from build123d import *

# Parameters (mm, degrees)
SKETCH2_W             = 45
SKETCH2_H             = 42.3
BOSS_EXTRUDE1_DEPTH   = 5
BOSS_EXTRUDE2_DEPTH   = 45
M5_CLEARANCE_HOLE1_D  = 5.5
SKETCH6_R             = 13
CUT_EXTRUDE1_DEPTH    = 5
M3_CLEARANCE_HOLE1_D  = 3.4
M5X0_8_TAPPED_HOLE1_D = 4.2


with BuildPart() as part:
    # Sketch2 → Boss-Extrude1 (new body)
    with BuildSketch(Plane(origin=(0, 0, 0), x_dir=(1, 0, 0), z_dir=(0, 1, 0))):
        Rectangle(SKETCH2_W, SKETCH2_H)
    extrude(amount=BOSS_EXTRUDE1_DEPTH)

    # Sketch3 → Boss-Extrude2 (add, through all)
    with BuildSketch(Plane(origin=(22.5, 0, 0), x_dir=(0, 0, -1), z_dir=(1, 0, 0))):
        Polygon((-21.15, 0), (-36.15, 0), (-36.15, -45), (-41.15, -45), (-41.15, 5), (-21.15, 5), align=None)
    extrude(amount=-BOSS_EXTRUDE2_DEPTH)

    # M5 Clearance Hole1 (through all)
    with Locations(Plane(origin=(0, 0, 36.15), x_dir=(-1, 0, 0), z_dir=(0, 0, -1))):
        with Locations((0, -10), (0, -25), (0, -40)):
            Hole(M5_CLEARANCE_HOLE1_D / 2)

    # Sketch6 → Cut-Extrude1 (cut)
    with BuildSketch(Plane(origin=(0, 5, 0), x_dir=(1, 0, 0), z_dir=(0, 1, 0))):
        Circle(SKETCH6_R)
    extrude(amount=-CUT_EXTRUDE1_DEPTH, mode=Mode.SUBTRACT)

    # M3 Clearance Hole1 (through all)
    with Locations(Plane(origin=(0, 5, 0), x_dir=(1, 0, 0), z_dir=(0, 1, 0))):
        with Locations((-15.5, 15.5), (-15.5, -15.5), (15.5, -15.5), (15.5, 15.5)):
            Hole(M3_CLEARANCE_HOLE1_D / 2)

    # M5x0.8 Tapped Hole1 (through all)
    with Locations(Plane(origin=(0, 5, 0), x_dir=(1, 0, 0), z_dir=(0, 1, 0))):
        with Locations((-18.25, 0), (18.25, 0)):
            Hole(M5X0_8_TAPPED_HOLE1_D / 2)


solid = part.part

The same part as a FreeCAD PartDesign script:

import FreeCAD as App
import Part
import Sketcher
from FreeCAD import Vector
Q = App.Units.Quantity

doc = App.newDocument("Part")
body = doc.addObject("PartDesign::Body", "Body")

sketch1 = body.newObject("Sketcher::SketchObject", "Sketch")
sketch1.AttachmentSupport = (doc.getObject("XZ_Plane"), [""])
sketch1.MapMode = "FlatFace"
sketch1.addGeometry(Part.LineSegment(Vector(-22.5, -21.15, 0), Vector(-22.5, 21.15, 0)), False)
sketch1.addGeometry(Part.LineSegment(Vector(-22.5, 21.15, 0), Vector(22.5, 21.15, 0)), False)
sketch1.addGeometry(Part.LineSegment(Vector(22.5, 21.15, 0), Vector(22.5, -21.15, 0)), False)
sketch1.addGeometry(Part.LineSegment(Vector(22.5, -21.15, 0), Vector(-22.5, -21.15, 0)), False)
sketch1.addConstraint(Sketcher.Constraint("Coincident", 0, 2, 1, 1))
sketch1.addConstraint(Sketcher.Constraint("Coincident", 1, 2, 2, 1))
sketch1.addConstraint(Sketcher.Constraint("Coincident", 2, 2, 3, 1))
sketch1.addConstraint(Sketcher.Constraint("Coincident", 3, 2, 0, 1))
sketch1.addConstraint(Sketcher.Constraint("Vertical", 0))
sketch1.addConstraint(Sketcher.Constraint("Horizontal", 1))
sketch1.addConstraint(Sketcher.Constraint("Vertical", 2))
sketch1.addConstraint(Sketcher.Constraint("Horizontal", 3))
sketch1.addConstraint(Sketcher.Constraint("Symmetric", 0, 2, 2, 2, -1, 1))
sketch1.addConstraint(Sketcher.Constraint("DistanceX", 1, 1, 1, 2, Q("45 mm")))
sketch1.addConstraint(Sketcher.Constraint("DistanceY", 0, 1, 0, 2, Q("42.3 mm")))
pad1 = body.newObject("PartDesign::Pad", "Pad")
pad1.Profile = sketch1
pad1.Length = 5
pad1.Reversed = True

sketch2 = body.newObject("Sketcher::SketchObject", "Sketch001")
sketch2.AttachmentSupport = (doc.getObject("YZ_Plane"), [""])
sketch2.MapMode = "FlatFace"
sketch2.AttachmentOffset = App.Placement(Vector(0, 0, 22.5), App.Rotation())
sketch2.addGeometry(Part.LineSegment(Vector(0, 36.15, 0), Vector(0, 21.15, 0)), False)
sketch2.addGeometry(Part.LineSegment(Vector(0, 21.15, 0), Vector(5, 21.15, 0)), False)
sketch2.addGeometry(Part.LineSegment(Vector(5, 21.15, 0), Vector(5, 41.15, 0)), False)
sketch2.addGeometry(Part.LineSegment(Vector(5, 41.15, 0), Vector(-45, 41.15, 0)), False)
sketch2.addGeometry(Part.LineSegment(Vector(-45, 41.15, 0), Vector(-45, 36.15, 0)), False)
sketch2.addGeometry(Part.LineSegment(Vector(-45, 36.15, 0), Vector(0, 36.15, 0)), False)
sketch2.addConstraint(Sketcher.Constraint("Coincident", 0, 2, 1, 1))
sketch2.addConstraint(Sketcher.Constraint("Coincident", 1, 2, 2, 1))
sketch2.addConstraint(Sketcher.Constraint("Coincident", 2, 2, 3, 1))
sketch2.addConstraint(Sketcher.Constraint("Coincident", 3, 2, 4, 1))
sketch2.addConstraint(Sketcher.Constraint("Coincident", 4, 2, 5, 1))
sketch2.addConstraint(Sketcher.Constraint("Coincident", 5, 2, 0, 1))
sketch2.addConstraint(Sketcher.Constraint("Vertical", 0))
sketch2.addConstraint(Sketcher.Constraint("Horizontal", 1))
sketch2.addConstraint(Sketcher.Constraint("Vertical", 2))
sketch2.addConstraint(Sketcher.Constraint("Horizontal", 3))
sketch2.addConstraint(Sketcher.Constraint("Vertical", 4))
sketch2.addConstraint(Sketcher.Constraint("Horizontal", 5))
sketch2.addConstraint(Sketcher.Constraint("PointOnObject", 0, 2, -2))
sketch2.addConstraint(Sketcher.Constraint("Equal", 1, 4))
sketch2.addConstraint(Sketcher.Constraint("DistanceX", 1, 1, 1, 2, Q("5 mm")))
sketch2.addConstraint(Sketcher.Constraint("DistanceX", 3, 2, 3, 1, Q("50 mm")))
sketch2.addConstraint(Sketcher.Constraint("DistanceY", 0, 2, 0, 1, Q("15 mm")))
sketch2.addConstraint(Sketcher.Constraint("DistanceY", -1, 1, 0, 2, Q("21.15 mm")))
pad2 = body.newObject("PartDesign::Pad", "Pad001")
pad2.Profile = sketch2
pad2.Length = 45
pad2.Reversed = True

sketch3 = body.newObject("Sketcher::SketchObject", "Sketch002")
sketch3.AttachmentSupport = (doc.getObject("XY_Plane"), [""])
sketch3.MapMode = "FlatFace"
sketch3.AttachmentOffset = App.Placement(Vector(0, 0, 36.15), App.Rotation())
sketch3.addGeometry(Part.Circle(Vector(0, -10, 0), Vector(0, 0, 1), 2.75), False)
sketch3.addGeometry(Part.Circle(Vector(0, -25, 0), Vector(0, 0, 1), 2.75), False)
sketch3.addGeometry(Part.Circle(Vector(0, -40, 0), Vector(0, 0, 1), 2.75), False)
sketch3.addConstraint(Sketcher.Constraint("Equal", 0, 1))
sketch3.addConstraint(Sketcher.Constraint("Equal", 1, 2))
sketch3.addConstraint(Sketcher.Constraint("PointOnObject", 0, 3, -2))
sketch3.addConstraint(Sketcher.Constraint("PointOnObject", 1, 3, -2))
sketch3.addConstraint(Sketcher.Constraint("PointOnObject", 2, 3, -2))
sketch3.addConstraint(Sketcher.Constraint("Diameter", 0, Q("5.5 mm")))
sketch3.addConstraint(Sketcher.Constraint("DistanceY", 0, 3, -1, 1, Q("10 mm")))
sketch3.addConstraint(Sketcher.Constraint("DistanceY", 1, 3, -1, 1, Q("25 mm")))
sketch3.addConstraint(Sketcher.Constraint("DistanceY", 2, 3, -1, 1, Q("40 mm")))
doc.recompute()
hole = body.newObject("PartDesign::Hole", "Hole")
hole.Profile = sketch3
hole.ThreadType = "None"
hole.Diameter = 5.5
hole.DepthType = "ThroughAll"
hole.Reversed = True

sketch4 = body.newObject("Sketcher::SketchObject", "Sketch003")
sketch4.AttachmentSupport = (doc.getObject("XZ_Plane"), [""])
sketch4.MapMode = "FlatFace"
sketch4.AttachmentOffset = App.Placement(Vector(0, 0, -5), App.Rotation())
sketch4.addGeometry(Part.Circle(Vector(0, 0, 0), Vector(0, 0, 1), 13), False)
sketch4.addConstraint(Sketcher.Constraint("Coincident", 0, 3, -1, 1))
sketch4.addConstraint(Sketcher.Constraint("Diameter", 0, Q("26 mm")))
pocket1 = body.newObject("PartDesign::Pocket", "Pocket")
pocket1.Profile = sketch4
pocket1.Length = 5
pocket1.Reversed = True

sketch5 = body.newObject("Sketcher::SketchObject", "Sketch004")
sketch5.AttachmentSupport = (doc.getObject("XZ_Plane"), [""])
sketch5.MapMode = "FlatFace"
sketch5.AttachmentOffset = App.Placement(Vector(0, 0, -5), App.Rotation())
sketch5.addGeometry(Part.Circle(Vector(-15.5, -15.5, 0), Vector(0, 0, 1), 1.7), False)
sketch5.addGeometry(Part.Circle(Vector(-15.5, 15.5, 0), Vector(0, 0, 1), 1.7), False)
sketch5.addGeometry(Part.Circle(Vector(15.5, 15.5, 0), Vector(0, 0, 1), 1.7), False)
sketch5.addGeometry(Part.Circle(Vector(15.5, -15.5, 0), Vector(0, 0, 1), 1.7), False)
sketch5.addConstraint(Sketcher.Constraint("Equal", 0, 1))
sketch5.addConstraint(Sketcher.Constraint("Equal", 1, 2))
sketch5.addConstraint(Sketcher.Constraint("Equal", 2, 3))
sketch5.addConstraint(Sketcher.Constraint("Symmetric", 0, 3, 2, 3, -1, 1))
sketch5.addConstraint(Sketcher.Constraint("Symmetric", 1, 3, 3, 3, -1, 1))
sketch5.addConstraint(Sketcher.Constraint("Symmetric", 1, 3, 2, 3, -2))
sketch5.addConstraint(Sketcher.Constraint("Diameter", 0, Q("3.4 mm")))
sketch5.addConstraint(Sketcher.Constraint("DistanceY", 0, 3, 1, 3, Q("31 mm")))
sketch5.addConstraint(Sketcher.Constraint("DistanceX", 1, 3, 2, 3, Q("31 mm")))
doc.recompute()
hole2 = body.newObject("PartDesign::Hole", "Hole001")
hole2.Profile = sketch5
hole2.ThreadType = "None"
hole2.Diameter = 3.4
hole2.DepthType = "ThroughAll"
hole2.Reversed = True

sketch6 = body.newObject("Sketcher::SketchObject", "Sketch005")
sketch6.AttachmentSupport = (doc.getObject("XZ_Plane"), [""])
sketch6.MapMode = "FlatFace"
sketch6.AttachmentOffset = App.Placement(Vector(0, 0, -5), App.Rotation())
sketch6.addGeometry(Part.Circle(Vector(-18.25, 0, 0), Vector(0, 0, 1), 2.1), False)
sketch6.addGeometry(Part.Circle(Vector(18.25, 0, 0), Vector(0, 0, 1), 2.1), False)
sketch6.addConstraint(Sketcher.Constraint("Equal", 0, 1))
sketch6.addConstraint(Sketcher.Constraint("Symmetric", 0, 3, 1, 3, -1, 1))
sketch6.addConstraint(Sketcher.Constraint("PointOnObject", 0, 3, -1))
sketch6.addConstraint(Sketcher.Constraint("Diameter", 0, Q("4.2 mm")))
sketch6.addConstraint(Sketcher.Constraint("DistanceX", 0, 3, 1, 3, Q("36.5 mm")))
doc.recompute()
hole3 = body.newObject("PartDesign::Hole", "Hole002")
hole3.Profile = sketch6
hole3.ThreadType = "None"
hole3.Diameter = 4.2
hole3.DepthType = "ThroughAll"
hole3.Reversed = True

doc.recompute()
